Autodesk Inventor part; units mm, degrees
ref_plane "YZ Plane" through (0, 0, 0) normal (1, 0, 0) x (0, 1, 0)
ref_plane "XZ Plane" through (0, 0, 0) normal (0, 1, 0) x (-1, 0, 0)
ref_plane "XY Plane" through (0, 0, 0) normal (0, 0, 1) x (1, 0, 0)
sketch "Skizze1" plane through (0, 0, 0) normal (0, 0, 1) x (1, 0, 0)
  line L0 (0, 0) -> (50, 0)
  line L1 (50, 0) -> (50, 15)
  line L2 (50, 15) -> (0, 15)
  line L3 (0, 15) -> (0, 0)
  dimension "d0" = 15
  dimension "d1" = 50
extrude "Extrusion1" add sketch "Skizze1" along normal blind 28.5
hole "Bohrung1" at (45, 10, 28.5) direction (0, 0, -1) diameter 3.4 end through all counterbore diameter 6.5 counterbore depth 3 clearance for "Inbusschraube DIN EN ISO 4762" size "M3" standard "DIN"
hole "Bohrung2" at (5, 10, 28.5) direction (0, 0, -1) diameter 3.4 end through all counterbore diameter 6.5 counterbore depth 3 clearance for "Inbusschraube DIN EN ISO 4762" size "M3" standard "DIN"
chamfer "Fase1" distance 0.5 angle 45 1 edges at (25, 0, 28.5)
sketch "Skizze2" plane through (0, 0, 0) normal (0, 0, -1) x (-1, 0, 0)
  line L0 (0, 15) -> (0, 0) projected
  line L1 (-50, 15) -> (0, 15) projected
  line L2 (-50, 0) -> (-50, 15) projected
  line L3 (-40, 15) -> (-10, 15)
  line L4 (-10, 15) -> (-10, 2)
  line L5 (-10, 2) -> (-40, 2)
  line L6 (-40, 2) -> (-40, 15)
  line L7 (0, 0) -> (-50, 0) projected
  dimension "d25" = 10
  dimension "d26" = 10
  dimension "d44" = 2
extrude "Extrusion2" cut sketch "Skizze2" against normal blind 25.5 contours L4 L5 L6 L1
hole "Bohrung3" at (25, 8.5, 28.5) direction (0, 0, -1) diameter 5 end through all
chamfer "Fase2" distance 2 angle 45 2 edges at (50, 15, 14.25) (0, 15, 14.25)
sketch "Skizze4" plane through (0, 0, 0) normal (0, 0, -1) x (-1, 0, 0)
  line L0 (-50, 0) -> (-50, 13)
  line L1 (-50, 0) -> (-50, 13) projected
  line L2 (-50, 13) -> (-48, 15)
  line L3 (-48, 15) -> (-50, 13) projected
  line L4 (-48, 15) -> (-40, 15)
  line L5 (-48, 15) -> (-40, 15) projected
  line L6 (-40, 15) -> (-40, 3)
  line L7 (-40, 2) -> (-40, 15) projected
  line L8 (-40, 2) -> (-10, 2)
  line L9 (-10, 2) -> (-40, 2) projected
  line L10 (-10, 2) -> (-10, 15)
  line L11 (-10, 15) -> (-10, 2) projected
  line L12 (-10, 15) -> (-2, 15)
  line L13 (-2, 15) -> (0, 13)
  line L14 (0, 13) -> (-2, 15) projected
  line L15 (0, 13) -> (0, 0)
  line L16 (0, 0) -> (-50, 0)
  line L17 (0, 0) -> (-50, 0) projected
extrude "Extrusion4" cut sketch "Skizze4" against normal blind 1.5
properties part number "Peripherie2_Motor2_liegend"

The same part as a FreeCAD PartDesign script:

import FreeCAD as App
import Part
import Sketcher

V = App.Vector


def edges_at(feature, points):
    """Names of the edges that pass closest to the given points."""
    edges = feature.Shape.Edges
    near = lambda p: min(range(len(edges)), key=lambda i: edges[i].distToShape(Part.Vertex(*p))[0])
    return sorted({f"Edge{near(p) + 1}" for p in points})


def add_polygon(sketch, points):
    """Adds a closed chain of lines whose ends are joined by coincident constraints."""
    first, n = sketch.GeometryCount, len(points)
    for a, b in zip(points, points[1:] + points[:1]):
        sketch.addGeometry(Part.LineSegment(App.Vector(*a, 0), App.Vector(*b, 0)), False)
    for i in range(n):
        sketch.addConstraint(Sketcher.Constraint("Coincident", first + i, 2, first + (i + 1) % n, 1))

doc = App.newDocument("Part")
body = doc.addObject("PartDesign::Body", "Body")

# Sketch on XY plane
sketch1 = body.newObject("Sketcher::SketchObject", "Sketch")
sketch1.AttachmentSupport = (doc.getObject("XY_Plane"), [""])
sketch1.MapMode = "FlatFace"
add_polygon(sketch1, [(0, 15), (0, 0), (50, 0), (50, 15)])  # lines 0-3
sketch1.addConstraint(Sketcher.Constraint("Vertical", 0))
sketch1.addConstraint(Sketcher.Constraint("Horizontal", 1))
sketch1.addConstraint(Sketcher.Constraint("Vertical", 2))
sketch1.addConstraint(Sketcher.Constraint("Horizontal", 3))
sketch1.addConstraint(Sketcher.Constraint("Coincident", 0, 2, -1, 1))
sketch1.addConstraint(Sketcher.Constraint("DistanceX", 1, 1, 1, 2, 50.0))
sketch1.addConstraint(Sketcher.Constraint("DistanceY", 0, 2, 0, 1, 15.0))
pad1 = body.newObject("PartDesign::Pad", "Pad")
pad1.Profile = sketch1
pad1.Length = 28.5

# Sketch on XY plane
sketch2 = body.newObject("Sketcher::SketchObject", "Sketch001")
sketch2.AttachmentSupport = (doc.getObject("XY_Plane"), [""])
sketch2.MapMode = "FlatFace"
sketch2.AttachmentOffset = App.Placement(V(0, 0, 28.5), App.Rotation())
sketch2.addGeometry(Part.Circle(V(45, 10, 0), V(0, 0, 1), 1.7), False)
sketch2.addConstraint(Sketcher.Constraint("Diameter", 0, 3.4))
sketch2.addConstraint(Sketcher.Constraint("DistanceX", -1, 1, 0, 3, 45.0))
sketch2.addConstraint(Sketcher.Constraint("DistanceY", -1, 1, 0, 3, 10.0))
doc.recompute()
hole = body.newObject("PartDesign::Hole", "Hole")
hole.Profile = sketch2
hole.ThreadType = "None"
hole.Diameter = 3.4
hole.DepthType = "ThroughAll"
hole.HoleCutType = "Counterbore"
hole.HoleCutDiameter = 6.5
hole.HoleCutDepth = 3

# Sketch on XY plane
sketch3 = body.newObject("Sketcher::SketchObject", "Sketch002")
sketch3.AttachmentSupport = (doc.getObject("XY_Plane"), [""])
sketch3.MapMode = "FlatFace"
sketch3.AttachmentOffset = App.Placement(V(0, 0, 28.5), App.Rotation())
sketch3.addGeometry(Part.Circle(V(5, 10, 0), V(0, 0, 1), 1.7), False)
sketch3.addConstraint(Sketcher.Constraint("Diameter", 0, 3.4))
sketch3.addConstraint(Sketcher.Constraint("DistanceX", -1, 1, 0, 3, 5.0))
sketch3.addConstraint(Sketcher.Constraint("DistanceY", -1, 1, 0, 3, 10.0))
doc.recompute()
hole2 = body.newObject("PartDesign::Hole", "Hole001")
hole2.Profile = sketch3
hole2.ThreadType = "None"
hole2.Diameter = 3.4
hole2.DepthType = "ThroughAll"
hole2.HoleCutType = "Counterbore"
hole2.HoleCutDiameter = 6.5
hole2.HoleCutDepth = 3
doc.recompute()

chamfer = body.newObject("PartDesign::Chamfer", "Chamfer")
chamfer.Base = (hole2, edges_at(hole2, [(25, 0, 28.5)]))
chamfer.Size = 0.5

# Sketch on XY plane
sketch4 = body.newObject("Sketcher::SketchObject", "Sketch003")
sketch4.AttachmentSupport = (doc.getObject("XY_Plane"), [""])
sketch4.MapMode = "FlatFace"
add_polygon(sketch4, [(10, 2), (10, 15), (40, 15), (40, 2)])  # lines 0-3
sketch4.addConstraint(Sketcher.Constraint("Vertical", 0))
sketch4.addConstraint(Sketcher.Constraint("Horizontal", 1))
sketch4.addConstraint(Sketcher.Constraint("Vertical", 2))
sketch4.addConstraint(Sketcher.Constraint("Horizontal", 3))
sketch4.addConstraint(Sketcher.Constraint("DistanceX", -1, 1, 0, 2, 10.0))
sketch4.addConstraint(Sketcher.Constraint("DistanceY", -1, 1, 2, 2, 2.0))
sketch4.addConstraint(Sketcher.Constraint("DistanceX", 1, 1, 1, 2, 30.0))
sketch4.addConstraint(Sketcher.Constraint("DistanceY", 0, 1, 0, 2, 13.0))
pocket1 = body.newObject("PartDesign::Pocket", "Pocket")
pocket1.Profile = sketch4
pocket1.Length = 25.5
pocket1.Reversed = True

# Sketch on XY plane
sketch5 = body.newObject("Sketcher::SketchObject", "Sketch004")
sketch5.AttachmentSupport = (doc.getObject("XY_Plane"), [""])
sketch5.MapMode = "FlatFace"
sketch5.AttachmentOffset = App.Placement(V(0, 0, 28.5), App.Rotation())
sketch5.addGeometry(Part.Circle(V(25, 8.5, 0), V(0, 0, 1), 2.5), False)
sketch5.addConstraint(Sketcher.Constraint("Diameter", 0, 5.0))
sketch5.addConstraint(Sketcher.Constraint("DistanceX", -1, 1, 0, 3, 25.0))
sketch5.addConstraint(Sketcher.Constraint("DistanceY", -1, 1, 0, 3, 8.5))
doc.recompute()
hole3 = body.newObject("PartDesign::Hole", "Hole002")
hole3.Profile = sketch5
hole3.ThreadType = "None"
hole3.Diameter = 5
hole3.DepthType = "ThroughAll"
doc.recompute()

chamfer2 = body.newObject("PartDesign::Chamfer", "Chamfer001")
chamfer2.Base = (hole3, edges_at(hole3, [(50, 15, 14.25), (0, 15, 14.25)]))
chamfer2.Size = 2

# Sketch on XY plane
sketch6 = body.newObject("Sketcher::SketchObject", "Sketch005")
sketch6.AttachmentSupport = (doc.getObject("XY_Plane"), [""])
sketch6.MapMode = "FlatFace"
add_polygon(sketch6, [(50, 13), (50, 0), (0, 0), (0, 13), (2, 15), (10, 15), (10, 2), (40, 2), (40, 15), (48, 15)])  # lines 0-9
sketch6.addConstraint(Sketcher.Constraint("Vertical", 0))
sketch6.addConstraint(Sketcher.Constraint("Horizontal", 1))
sketch6.addConstraint(Sketcher.Constraint("Vertical", 2))
sketch6.addConstraint(Sketcher.Constraint("Horizontal", 4))
sketch6.addConstraint(Sketcher.Constraint("Vertical", 5))
sketch6.addConstraint(Sketcher.Constraint("Horizontal", 6))
sketch6.addConstraint(Sketcher.Constraint("Vertical", 7))
sketch6.addConstraint(Sketcher.Constraint("Horizontal", 8))
sketch6.addConstraint(Sketcher.Constraint("Coincident", 1, 2, -1, 1))
sketch6.addConstraint(Sketcher.Constraint("Perpendicular", 3, 9))
sketch6.addConstraint(Sketcher.Constraint("Horizontal", 4, 2, 7, 2))
sketch6.addConstraint(Sketcher.Constraint("Horizontal", 2, 2, 9, 2))
sketch6.addConstraint(Sketcher.Constraint("Equal", 4, 8))
sketch6.addConstraint(Sketcher.Constraint("Equal", 2, 5))
sketch6.addConstraint(Sketcher.Constraint("Equal", 3, 9))
sketch6.addConstraint(Sketcher.Constraint("DistanceX", 1, 2, 1, 1, 50.0))
sketch6.addConstraint(Sketcher.Constraint("DistanceX", 4, 1, 4, 2, 8.0))
sketch6.addConstraint(Sketcher.Constraint("DistanceX", 6, 1, 6, 2, 30.0))
sketch6.addConstraint(Sketcher.Constraint("DistanceY", 0, 2, 0, 1, 13.0))
pocket2 = body.newObject("PartDesign::Pocket", "Pocket001")
pocket2.Profile = sketch6
pocket2.Length = 1.5
pocket2.Reversed = True

doc.recompute()
